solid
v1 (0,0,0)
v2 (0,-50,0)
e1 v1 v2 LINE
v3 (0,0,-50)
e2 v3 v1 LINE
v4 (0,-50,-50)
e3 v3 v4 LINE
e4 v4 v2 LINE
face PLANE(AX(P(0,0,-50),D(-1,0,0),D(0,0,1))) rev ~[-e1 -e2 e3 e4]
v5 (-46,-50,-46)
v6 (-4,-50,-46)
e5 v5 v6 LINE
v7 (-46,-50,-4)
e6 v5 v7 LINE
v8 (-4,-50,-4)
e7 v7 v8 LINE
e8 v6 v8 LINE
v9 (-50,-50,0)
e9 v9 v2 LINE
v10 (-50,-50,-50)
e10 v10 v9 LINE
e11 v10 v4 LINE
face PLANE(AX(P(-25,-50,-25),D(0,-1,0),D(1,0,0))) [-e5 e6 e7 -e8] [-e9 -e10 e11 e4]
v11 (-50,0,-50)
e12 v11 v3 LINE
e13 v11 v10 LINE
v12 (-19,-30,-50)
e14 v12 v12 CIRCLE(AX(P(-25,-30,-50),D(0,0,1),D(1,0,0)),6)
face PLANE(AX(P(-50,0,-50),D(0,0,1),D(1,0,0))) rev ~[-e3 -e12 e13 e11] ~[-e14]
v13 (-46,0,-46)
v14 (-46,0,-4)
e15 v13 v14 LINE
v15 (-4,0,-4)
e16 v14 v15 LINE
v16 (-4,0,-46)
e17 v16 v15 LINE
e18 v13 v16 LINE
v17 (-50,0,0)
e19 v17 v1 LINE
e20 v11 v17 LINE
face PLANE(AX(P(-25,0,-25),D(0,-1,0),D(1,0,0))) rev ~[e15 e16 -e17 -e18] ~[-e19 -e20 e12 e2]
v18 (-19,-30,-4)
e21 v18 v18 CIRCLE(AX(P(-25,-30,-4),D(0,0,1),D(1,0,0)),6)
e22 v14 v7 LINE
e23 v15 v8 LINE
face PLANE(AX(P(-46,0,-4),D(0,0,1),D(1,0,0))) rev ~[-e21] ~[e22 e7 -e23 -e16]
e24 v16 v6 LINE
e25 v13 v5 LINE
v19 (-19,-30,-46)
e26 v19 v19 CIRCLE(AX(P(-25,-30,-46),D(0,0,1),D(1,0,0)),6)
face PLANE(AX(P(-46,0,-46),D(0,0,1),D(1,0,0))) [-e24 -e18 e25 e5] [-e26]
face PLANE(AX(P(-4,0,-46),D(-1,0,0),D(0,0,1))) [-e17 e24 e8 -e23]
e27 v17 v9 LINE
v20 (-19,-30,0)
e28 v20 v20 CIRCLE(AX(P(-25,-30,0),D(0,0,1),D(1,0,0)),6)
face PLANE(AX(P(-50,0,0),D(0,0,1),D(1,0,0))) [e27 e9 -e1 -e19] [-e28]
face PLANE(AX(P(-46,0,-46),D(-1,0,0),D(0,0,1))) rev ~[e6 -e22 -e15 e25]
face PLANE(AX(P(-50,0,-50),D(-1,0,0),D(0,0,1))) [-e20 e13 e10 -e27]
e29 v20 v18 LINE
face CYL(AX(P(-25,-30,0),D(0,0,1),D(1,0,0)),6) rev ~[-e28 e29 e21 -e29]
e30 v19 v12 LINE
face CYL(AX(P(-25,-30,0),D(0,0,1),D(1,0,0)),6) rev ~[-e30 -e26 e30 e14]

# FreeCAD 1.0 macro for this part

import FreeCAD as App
import Part
import Sketcher

doc = App.newDocument("Part")
body = doc.addObject("PartDesign::Body", "Body")

sketch1 = body.newObject("Sketcher::SketchObject", "Sketch")
sketch1.AttachmentSupport = (doc.getObject("XZ_Plane"), [""])
sketch1.MapMode = "FlatFace"
sketch1.addGeometry([
    Part.LineSegment(App.Vector(-50, 0, 0), App.Vector(-50, -50, 0)),
    Part.LineSegment(App.Vector(-50, -50, 0), App.Vector(0, -50, 0)),
    Part.LineSegment(App.Vector(0, -50, 0), App.Vector(0, 0, 0)),
    Part.LineSegment(App.Vector(0, 0, 0), App.Vector(-50, 0, 0)),
    Part.LineSegment(App.Vector(-4, -46, 0), App.Vector(-46, -46, 0)),
    Part.LineSegment(App.Vector(-46, -46, 0), App.Vector(-46, -4, 0)),
    Part.LineSegment(App.Vector(-46, -4, 0), App.Vector(-4, -4, 0)),
    Part.LineSegment(App.Vector(-4, -4, 0), App.Vector(-4, -46, 0)),
], False)
sketch1.addConstraint([
    Sketcher.Constraint("Coincident", 0, 2, 1, 1),
    Sketcher.Constraint("Coincident", 1, 2, 2, 1),
    Sketcher.Constraint("Coincident", 2, 2, 3, 1),
    Sketcher.Constraint("Coincident", 3, 2, 0, 1),
    Sketcher.Constraint("Coincident", 4, 2, 5, 1),
    Sketcher.Constraint("Coincident", 5, 2, 6, 1),
    Sketcher.Constraint("Coincident", 6, 2, 7, 1),
    Sketcher.Constraint("Coincident", 7, 2, 4, 1),
    Sketcher.Constraint("Vertical", 0),
    Sketcher.Constraint("Horizontal", 1),
    Sketcher.Constraint("Vertical", 2),
    Sketcher.Constraint("Horizontal", 3),
    Sketcher.Constraint("Horizontal", 4),
    Sketcher.Constraint("Vertical", 5),
    Sketcher.Constraint("Horizontal", 6),
    Sketcher.Constraint("Vertical", 7),
    Sketcher.Constraint("Coincident", 2, 2, -1, 1),
    Sketcher.Constraint("Equal", 3, 0),
    Sketcher.Constraint("Equal", 6, 5),
    Sketcher.Constraint("DistanceX", 1, 1, 1, 2, 50.0),
    Sketcher.Constraint("DistanceX", 4, 2, 4, 1, 42.0),
    Sketcher.Constraint("DistanceX", 4, 2, -1, 1, 46.0),
    Sketcher.Constraint("DistanceY", 4, 2, -1, 1, 46.0),
])
pad1 = body.newObject("PartDesign::Pad", "Pad")
pad1.Profile = sketch1
pad1.Length = 50

sketch2 = body.newObject("Sketcher::SketchObject", "Sketch001")
sketch2.AttachmentSupport = (doc.getObject("XY_Plane"), [""])
sketch2.MapMode = "FlatFace"
sketch2.addGeometry(Part.Circle(App.Vector(-25, -30, 0), App.Vector(0, 0, 1), 6), False)
sketch2.addConstraint([
    Sketcher.Constraint("Diameter", 0, 12.0),
    Sketcher.Constraint("DistanceX", 0, 3, -1, 1, 25.0),
    Sketcher.Constraint("DistanceY", 0, 3, -1, 1, 30.0),
])
pocket1 = body.newObject("PartDesign::Pocket", "Pocket")
pocket1.Profile = sketch2
pocket1.Type = "ThroughAll"

doc.recompute()
